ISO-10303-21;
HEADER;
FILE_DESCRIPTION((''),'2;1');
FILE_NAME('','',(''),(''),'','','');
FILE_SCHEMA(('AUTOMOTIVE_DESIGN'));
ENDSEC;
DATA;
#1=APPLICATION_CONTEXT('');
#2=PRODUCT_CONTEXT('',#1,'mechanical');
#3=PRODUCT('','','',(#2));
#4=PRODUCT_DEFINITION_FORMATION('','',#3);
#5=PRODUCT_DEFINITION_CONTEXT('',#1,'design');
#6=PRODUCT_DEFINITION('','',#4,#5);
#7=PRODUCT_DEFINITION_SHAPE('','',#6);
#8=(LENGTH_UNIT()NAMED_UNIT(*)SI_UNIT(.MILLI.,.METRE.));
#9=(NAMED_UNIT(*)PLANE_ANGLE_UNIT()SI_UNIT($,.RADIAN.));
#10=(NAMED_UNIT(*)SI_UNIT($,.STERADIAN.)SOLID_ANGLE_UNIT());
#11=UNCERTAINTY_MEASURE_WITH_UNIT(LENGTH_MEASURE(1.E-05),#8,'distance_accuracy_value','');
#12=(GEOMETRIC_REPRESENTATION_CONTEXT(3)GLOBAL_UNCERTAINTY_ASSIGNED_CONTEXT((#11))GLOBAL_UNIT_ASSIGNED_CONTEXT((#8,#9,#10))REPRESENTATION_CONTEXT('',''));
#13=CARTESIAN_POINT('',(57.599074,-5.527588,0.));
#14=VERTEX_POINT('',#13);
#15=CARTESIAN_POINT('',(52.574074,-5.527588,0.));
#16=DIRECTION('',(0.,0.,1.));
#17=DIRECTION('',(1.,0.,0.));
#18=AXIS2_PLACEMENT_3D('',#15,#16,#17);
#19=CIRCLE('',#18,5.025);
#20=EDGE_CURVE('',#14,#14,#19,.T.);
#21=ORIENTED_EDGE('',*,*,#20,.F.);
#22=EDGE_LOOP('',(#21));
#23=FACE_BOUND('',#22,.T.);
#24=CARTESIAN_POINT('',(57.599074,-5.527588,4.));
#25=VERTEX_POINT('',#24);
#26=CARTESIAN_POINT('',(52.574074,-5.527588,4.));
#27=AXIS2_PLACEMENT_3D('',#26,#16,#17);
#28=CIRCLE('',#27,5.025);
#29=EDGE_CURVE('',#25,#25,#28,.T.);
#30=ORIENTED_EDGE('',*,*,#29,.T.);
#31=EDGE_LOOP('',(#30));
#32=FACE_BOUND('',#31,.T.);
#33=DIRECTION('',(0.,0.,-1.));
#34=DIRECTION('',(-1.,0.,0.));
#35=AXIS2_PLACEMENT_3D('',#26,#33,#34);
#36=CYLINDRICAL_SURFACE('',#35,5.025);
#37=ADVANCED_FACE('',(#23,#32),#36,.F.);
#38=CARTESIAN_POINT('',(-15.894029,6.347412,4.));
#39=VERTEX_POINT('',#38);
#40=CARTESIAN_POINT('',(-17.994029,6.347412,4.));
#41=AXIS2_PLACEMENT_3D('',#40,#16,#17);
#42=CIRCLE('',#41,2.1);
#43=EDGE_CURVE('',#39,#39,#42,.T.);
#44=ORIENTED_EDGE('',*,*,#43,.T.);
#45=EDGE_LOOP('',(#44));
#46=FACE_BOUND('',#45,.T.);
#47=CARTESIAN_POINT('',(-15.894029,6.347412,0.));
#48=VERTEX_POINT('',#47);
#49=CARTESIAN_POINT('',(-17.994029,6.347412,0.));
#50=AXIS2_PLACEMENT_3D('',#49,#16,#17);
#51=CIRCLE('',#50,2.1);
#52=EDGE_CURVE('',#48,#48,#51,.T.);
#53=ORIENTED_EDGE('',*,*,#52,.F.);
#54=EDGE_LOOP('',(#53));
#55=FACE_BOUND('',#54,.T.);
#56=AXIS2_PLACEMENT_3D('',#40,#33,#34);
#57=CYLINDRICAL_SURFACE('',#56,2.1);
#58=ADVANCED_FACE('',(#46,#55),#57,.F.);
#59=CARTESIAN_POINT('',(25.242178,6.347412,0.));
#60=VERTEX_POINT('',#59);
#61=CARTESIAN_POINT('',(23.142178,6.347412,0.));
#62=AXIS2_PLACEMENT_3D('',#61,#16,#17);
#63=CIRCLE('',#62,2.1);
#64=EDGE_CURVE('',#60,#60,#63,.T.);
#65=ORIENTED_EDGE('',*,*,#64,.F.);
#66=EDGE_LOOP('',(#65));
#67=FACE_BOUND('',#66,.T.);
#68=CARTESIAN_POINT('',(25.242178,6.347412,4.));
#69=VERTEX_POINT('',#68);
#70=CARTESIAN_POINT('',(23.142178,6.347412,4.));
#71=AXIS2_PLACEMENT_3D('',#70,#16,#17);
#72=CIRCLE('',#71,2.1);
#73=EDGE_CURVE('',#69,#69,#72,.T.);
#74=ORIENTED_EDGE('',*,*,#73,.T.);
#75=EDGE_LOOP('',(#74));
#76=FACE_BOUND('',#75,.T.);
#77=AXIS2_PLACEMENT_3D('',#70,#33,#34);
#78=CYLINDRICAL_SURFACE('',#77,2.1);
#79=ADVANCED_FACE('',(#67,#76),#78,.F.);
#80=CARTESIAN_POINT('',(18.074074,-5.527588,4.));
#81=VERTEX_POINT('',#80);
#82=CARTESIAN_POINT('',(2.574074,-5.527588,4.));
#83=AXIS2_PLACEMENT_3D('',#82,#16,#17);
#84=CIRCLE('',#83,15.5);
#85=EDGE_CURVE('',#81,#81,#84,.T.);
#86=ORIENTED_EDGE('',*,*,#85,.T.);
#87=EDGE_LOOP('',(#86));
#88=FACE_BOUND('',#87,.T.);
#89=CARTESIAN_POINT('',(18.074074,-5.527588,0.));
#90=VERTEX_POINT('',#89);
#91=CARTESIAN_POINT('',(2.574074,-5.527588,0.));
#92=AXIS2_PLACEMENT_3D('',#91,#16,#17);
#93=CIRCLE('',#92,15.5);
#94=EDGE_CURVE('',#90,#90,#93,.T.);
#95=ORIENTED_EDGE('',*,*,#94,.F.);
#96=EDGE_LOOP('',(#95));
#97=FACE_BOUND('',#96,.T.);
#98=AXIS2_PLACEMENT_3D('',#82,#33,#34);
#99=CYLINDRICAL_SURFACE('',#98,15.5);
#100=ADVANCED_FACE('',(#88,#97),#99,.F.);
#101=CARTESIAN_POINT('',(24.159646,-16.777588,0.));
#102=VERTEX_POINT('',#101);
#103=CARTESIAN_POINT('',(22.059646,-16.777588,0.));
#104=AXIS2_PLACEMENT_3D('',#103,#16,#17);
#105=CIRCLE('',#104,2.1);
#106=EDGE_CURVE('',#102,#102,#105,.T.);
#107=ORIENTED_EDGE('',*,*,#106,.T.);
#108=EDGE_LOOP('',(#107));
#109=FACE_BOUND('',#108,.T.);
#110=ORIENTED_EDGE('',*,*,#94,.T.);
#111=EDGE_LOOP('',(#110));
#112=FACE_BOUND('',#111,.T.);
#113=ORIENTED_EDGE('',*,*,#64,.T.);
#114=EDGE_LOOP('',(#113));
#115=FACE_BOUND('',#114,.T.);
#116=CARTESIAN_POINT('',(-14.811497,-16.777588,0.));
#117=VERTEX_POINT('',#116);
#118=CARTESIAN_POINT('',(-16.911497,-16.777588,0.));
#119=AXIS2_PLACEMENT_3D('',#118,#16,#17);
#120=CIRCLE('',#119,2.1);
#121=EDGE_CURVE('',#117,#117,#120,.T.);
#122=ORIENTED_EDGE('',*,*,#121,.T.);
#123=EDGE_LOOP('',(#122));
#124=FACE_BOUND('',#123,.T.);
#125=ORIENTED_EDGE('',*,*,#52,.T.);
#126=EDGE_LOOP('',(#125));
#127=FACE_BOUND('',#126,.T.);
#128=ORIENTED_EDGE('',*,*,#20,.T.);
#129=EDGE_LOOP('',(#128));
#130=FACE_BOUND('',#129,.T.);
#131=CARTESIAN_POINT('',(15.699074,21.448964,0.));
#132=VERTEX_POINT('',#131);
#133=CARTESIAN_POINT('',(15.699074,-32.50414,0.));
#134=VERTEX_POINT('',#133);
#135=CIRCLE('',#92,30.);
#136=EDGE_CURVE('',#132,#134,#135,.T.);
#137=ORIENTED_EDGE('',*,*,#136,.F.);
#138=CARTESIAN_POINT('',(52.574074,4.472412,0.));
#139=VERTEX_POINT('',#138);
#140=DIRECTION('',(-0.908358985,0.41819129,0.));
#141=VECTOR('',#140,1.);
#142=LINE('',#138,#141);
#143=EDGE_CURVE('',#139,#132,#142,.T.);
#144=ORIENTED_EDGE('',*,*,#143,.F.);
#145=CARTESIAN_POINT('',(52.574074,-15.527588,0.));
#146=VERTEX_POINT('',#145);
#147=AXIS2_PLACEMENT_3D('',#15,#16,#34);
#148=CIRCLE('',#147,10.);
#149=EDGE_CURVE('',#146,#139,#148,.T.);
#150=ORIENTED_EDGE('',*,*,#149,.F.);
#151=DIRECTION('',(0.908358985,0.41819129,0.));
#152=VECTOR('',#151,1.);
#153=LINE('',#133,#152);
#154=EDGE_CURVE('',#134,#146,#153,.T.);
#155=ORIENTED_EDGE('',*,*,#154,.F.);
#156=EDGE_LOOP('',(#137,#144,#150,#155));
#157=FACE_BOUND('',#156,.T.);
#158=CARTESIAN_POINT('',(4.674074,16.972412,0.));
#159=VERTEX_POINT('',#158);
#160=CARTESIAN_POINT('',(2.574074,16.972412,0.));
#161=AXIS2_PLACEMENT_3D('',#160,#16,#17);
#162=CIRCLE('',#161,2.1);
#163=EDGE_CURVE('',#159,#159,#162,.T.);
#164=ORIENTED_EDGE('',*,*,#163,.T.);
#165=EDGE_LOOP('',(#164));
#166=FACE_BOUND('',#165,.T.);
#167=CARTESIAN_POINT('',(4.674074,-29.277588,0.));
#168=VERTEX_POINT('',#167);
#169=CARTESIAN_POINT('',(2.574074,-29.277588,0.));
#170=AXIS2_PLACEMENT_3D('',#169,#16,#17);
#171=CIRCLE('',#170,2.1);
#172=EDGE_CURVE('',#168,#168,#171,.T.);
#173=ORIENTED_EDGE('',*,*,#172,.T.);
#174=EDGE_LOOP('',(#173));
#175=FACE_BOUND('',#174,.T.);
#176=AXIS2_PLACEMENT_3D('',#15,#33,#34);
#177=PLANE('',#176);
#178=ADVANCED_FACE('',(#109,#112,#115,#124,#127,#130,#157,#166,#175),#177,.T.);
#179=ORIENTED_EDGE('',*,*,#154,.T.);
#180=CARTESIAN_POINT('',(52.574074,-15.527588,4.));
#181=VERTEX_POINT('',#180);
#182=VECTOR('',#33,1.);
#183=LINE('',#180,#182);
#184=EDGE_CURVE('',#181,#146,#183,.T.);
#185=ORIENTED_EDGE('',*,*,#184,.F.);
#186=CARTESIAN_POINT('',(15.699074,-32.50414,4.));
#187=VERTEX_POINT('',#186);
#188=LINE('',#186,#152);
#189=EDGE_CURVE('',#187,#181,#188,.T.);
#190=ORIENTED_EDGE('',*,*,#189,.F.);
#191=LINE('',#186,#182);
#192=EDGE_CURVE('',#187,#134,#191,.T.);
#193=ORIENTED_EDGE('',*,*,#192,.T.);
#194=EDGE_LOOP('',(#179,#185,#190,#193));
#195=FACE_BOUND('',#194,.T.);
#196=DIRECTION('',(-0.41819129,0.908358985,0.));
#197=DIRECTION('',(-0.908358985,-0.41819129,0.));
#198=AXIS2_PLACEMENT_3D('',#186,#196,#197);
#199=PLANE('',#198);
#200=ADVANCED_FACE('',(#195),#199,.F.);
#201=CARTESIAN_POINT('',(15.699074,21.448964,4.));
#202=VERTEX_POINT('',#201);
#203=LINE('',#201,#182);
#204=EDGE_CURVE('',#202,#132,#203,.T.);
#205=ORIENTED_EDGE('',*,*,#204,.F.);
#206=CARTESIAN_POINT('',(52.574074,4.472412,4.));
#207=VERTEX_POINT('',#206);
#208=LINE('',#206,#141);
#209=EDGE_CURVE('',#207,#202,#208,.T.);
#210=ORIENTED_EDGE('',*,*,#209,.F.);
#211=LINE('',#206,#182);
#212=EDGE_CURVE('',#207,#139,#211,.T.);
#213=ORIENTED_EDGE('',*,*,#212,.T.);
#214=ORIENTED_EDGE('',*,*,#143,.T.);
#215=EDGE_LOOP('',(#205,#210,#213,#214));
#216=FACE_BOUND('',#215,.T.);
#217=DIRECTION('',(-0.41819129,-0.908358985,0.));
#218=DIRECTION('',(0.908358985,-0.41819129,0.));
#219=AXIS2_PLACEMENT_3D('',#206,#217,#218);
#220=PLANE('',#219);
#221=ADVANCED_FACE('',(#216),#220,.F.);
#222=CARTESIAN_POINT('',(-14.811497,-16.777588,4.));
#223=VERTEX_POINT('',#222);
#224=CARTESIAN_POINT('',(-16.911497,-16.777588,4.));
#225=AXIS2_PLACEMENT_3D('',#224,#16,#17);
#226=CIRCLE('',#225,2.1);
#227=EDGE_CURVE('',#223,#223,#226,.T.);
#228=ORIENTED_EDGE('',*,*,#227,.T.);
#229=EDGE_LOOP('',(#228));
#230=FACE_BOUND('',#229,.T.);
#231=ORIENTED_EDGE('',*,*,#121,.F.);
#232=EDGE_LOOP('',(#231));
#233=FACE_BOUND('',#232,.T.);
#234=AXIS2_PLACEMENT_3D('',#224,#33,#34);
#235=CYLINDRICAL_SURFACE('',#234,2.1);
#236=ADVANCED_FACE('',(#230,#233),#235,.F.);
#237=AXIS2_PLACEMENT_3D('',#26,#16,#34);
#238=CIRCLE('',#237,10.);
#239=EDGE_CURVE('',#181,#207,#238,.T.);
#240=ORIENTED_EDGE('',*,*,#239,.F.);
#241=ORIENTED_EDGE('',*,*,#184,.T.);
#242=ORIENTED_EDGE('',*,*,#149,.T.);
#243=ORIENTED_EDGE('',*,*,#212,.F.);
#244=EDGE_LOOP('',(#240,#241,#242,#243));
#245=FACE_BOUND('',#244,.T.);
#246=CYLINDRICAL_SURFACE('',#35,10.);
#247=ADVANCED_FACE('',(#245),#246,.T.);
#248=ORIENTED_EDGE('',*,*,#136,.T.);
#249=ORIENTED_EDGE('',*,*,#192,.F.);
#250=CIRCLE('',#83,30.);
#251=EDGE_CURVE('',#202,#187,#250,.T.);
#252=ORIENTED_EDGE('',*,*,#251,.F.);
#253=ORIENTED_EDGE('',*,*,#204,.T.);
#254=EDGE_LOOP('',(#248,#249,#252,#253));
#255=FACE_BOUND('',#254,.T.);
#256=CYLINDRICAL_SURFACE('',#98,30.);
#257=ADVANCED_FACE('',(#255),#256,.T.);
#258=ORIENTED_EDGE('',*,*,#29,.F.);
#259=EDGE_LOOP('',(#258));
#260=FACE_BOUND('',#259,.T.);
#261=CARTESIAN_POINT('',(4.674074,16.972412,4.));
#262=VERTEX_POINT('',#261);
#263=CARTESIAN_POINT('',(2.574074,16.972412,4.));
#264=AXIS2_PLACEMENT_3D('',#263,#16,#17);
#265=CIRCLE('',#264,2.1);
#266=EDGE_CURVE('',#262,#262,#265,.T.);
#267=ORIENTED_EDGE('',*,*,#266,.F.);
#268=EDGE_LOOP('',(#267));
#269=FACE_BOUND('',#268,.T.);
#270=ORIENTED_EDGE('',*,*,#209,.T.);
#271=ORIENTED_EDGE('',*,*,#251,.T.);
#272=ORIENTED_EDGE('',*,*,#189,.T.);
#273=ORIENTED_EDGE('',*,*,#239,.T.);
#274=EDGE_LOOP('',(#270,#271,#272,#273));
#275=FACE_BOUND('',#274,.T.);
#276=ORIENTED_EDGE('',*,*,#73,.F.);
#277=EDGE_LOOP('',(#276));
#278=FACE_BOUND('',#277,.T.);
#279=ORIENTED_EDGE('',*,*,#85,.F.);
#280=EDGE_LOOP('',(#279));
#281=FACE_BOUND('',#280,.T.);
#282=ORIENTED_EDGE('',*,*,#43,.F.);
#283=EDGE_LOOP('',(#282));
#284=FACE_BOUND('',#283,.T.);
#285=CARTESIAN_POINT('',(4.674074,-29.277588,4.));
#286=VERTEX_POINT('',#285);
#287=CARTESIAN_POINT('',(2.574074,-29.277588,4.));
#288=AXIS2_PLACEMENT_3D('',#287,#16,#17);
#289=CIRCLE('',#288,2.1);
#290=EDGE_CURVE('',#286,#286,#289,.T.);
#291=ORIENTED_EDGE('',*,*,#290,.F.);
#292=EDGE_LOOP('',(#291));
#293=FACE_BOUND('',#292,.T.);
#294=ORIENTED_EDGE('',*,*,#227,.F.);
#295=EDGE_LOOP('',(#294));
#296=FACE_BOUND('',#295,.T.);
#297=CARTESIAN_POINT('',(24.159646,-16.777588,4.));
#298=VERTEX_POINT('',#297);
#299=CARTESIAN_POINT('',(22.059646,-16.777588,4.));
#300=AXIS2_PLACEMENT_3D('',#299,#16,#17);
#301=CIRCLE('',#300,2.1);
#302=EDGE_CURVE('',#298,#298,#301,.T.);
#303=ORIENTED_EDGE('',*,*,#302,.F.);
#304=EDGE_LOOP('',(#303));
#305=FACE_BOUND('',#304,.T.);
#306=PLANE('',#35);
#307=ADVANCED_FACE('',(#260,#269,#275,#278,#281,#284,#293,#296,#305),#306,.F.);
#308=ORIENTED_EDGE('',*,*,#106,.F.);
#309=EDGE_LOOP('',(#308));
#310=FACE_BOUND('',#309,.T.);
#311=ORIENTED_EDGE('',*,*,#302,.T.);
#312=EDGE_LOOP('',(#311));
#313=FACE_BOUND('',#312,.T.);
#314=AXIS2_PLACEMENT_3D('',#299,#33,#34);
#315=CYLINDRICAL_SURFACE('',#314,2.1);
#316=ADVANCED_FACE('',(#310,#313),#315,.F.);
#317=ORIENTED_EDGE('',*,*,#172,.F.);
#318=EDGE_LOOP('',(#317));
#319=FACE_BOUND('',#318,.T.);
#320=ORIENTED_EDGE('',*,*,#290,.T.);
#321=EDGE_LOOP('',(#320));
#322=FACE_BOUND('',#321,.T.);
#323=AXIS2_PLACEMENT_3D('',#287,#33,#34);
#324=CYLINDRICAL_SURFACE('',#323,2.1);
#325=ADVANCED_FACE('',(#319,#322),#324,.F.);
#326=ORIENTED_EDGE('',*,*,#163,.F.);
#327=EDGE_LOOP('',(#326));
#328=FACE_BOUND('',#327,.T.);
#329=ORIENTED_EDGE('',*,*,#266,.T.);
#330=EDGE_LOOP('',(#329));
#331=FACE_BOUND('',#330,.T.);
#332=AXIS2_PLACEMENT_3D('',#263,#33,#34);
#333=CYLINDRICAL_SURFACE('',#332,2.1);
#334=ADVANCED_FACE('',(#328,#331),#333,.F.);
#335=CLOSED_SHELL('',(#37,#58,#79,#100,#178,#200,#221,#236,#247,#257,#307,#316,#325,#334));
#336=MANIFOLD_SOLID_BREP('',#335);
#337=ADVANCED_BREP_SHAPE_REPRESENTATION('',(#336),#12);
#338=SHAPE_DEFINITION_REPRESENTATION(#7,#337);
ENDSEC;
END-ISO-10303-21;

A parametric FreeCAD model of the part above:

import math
import FreeCAD as App
import Part
import Sketcher
from FreeCAD import Vector
Q = App.Units.Quantity

doc = App.newDocument("Part")
body = doc.addObject("PartDesign::Body", "Body")

# Sketch on XY plane
sketch1 = doc.addObject("Sketcher::SketchObject", "Sketch")
body.addObject(sketch1)
sketch1.AttachmentSupport = (doc.XY_Plane, [""])
sketch1.MapMode = "FlatFace"
sketch1.addGeometry([
    Part.LineSegment(Vector(52.6, 4.5, 0), Vector(15.7, 21.4, 0)),  # 0
    Part.ArcOfCircle(Part.Circle(Vector(2.6, -5.5, 0), Vector(0, 0, 1), 30), math.radians(64), math.radians(296)),  # 1
    Part.LineSegment(Vector(15.7, -32.5, 0), Vector(52.6, -15.5, 0)),  # 2
    Part.ArcOfCircle(Part.Circle(Vector(52.6, -5.5, 0), Vector(0, 0, 1), 10), math.radians(-90), math.radians(90)),  # 3
    Part.Circle(Vector(2.6, -29.3, 0), Vector(0, 0, 1), 2.1),  # 4
    Part.Circle(Vector(-16.9, -16.8, 0), Vector(0, 0, 1), 2.1),  # 5
    Part.Circle(Vector(22.1, -16.8, 0), Vector(0, 0, 1), 2.1),  # 6
    Part.Circle(Vector(-18, 6.3, 0), Vector(0, 0, 1), 2.1),  # 7
    Part.Circle(Vector(2.6, -5.5, 0), Vector(0, 0, 1), 15.5),  # 8
    Part.Circle(Vector(2.6, 17, 0), Vector(0, 0, 1), 2.1),  # 9
    Part.Circle(Vector(23.1, 6.3, 0), Vector(0, 0, 1), 2.1),  # 10
    Part.Circle(Vector(52.6, -5.5, 0), Vector(0, 0, 1), 5),  # 11
], False)
sketch1.addConstraint([
    Sketcher.Constraint("Coincident", 0, 2, 1, 1),
    Sketcher.Constraint("Coincident", 1, 2, 2, 1),
    Sketcher.Constraint("Coincident", 2, 2, 3, 1),
    Sketcher.Constraint("Coincident", 3, 2, 0, 1),
    Sketcher.Constraint("Coincident", 8, 3, 1, 3),
    Sketcher.Constraint("Coincident", 11, 3, 3, 3),
    Sketcher.Constraint("Equal", 4, 5),
    Sketcher.Constraint("Equal", 5, 6),
    Sketcher.Constraint("Equal", 6, 7),
    Sketcher.Constraint("Equal", 7, 9),
    Sketcher.Constraint("Equal", 9, 10),
    Sketcher.Constraint("Horizontal", 1, 3, 3, 3),
    Sketcher.Constraint("Horizontal", 5, 3, 6, 3),
    Sketcher.Constraint("Horizontal", 7, 3, 10, 3),
    Sketcher.Constraint("Vertical", 1, 3, 4, 3),
    Sketcher.Constraint("Vertical", 8, 3, 9, 3),
    Sketcher.Constraint("Vertical", 0, 2, 1, 2),
    Sketcher.Constraint("Vertical", 11, 3, 2, 2),
    Sketcher.Constraint("Vertical", 2, 2, 3, 2),
    Sketcher.Constraint("Diameter", 8, Q("31 mm")),
    Sketcher.Constraint("Radius", 1, Q("30 mm")),
    Sketcher.Constraint("Radius", 3, Q("10 mm")),
    Sketcher.Constraint("Diameter", 4, Q("4.2 mm")),
    Sketcher.Constraint("Diameter", 11, Q("10.05 mm")),
    Sketcher.Constraint("DistanceX", 1, 3, 3, 3, Q("50 mm")),
    Sketcher.Constraint("DistanceY", 4, 3, 5, 3, Q("12.5 mm")),
    Sketcher.Constraint("DistanceY", 8, 3, 9, 3, Q("22.5 mm")),
    Sketcher.Constraint("DistanceY", 4, 3, 1, 3, Q("23.75 mm")),
    Sketcher.Constraint("DistanceY", 5, 3, 7, 3, Q("23.125 mm")),
    Sketcher.Constraint("DistanceX", 9, 3, 0, 2, Q("13.125 mm")),
    Sketcher.Constraint("DistanceX", 7, 3, -1, 1, Q("17.994029 mm")),
    Sketcher.Constraint("DistanceY", 1, 2, -1, 1, Q("32.50414 mm")),
    Sketcher.Constraint("DistanceX", 5, 3, 1, 3, Q("19.485572 mm")),
    Sketcher.Constraint("DistanceX", 1, 3, 6, 3, Q("19.485572 mm")),
    Sketcher.Constraint("DistanceX", 7, 3, 5, 3, Q("1.082532 mm")),
    Sketcher.Constraint("DistanceX", 6, 3, 10, 3, Q("1.082532 mm")),
])
pad1 = doc.addObject("PartDesign::Pad", "Pad")
body.addObject(pad1)
pad1.Profile = sketch1
pad1.Length = 4

doc.recompute()
